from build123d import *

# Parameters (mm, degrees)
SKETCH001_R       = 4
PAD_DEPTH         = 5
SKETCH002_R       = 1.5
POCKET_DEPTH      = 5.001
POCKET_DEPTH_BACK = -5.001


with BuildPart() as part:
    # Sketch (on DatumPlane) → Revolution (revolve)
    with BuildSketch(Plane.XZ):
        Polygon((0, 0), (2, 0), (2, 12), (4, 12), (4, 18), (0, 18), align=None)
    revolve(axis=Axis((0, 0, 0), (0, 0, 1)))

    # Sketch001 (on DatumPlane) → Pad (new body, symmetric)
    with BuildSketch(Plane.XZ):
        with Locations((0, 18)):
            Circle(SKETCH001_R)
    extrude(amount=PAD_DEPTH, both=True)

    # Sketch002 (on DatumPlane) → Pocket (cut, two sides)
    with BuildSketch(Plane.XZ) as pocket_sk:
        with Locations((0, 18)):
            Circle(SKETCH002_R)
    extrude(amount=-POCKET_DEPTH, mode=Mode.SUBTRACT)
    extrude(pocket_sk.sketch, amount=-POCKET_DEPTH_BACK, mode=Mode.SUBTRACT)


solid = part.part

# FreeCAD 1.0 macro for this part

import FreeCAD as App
import Part
import Sketcher


def add_polygon(sketch, points):
    """Adds a closed chain of lines whose ends are joined by coincident constraints."""
    first, n = sketch.GeometryCount, len(points)
    for a, b in zip(points, points[1:] + points[:1]):
        sketch.addGeometry(Part.LineSegment(App.Vector(*a, 0), App.Vector(*b, 0)), False)
    for i in range(n):
        sketch.addConstraint(Sketcher.Constraint("Coincident", first + i, 2, first + (i + 1) % n, 1))

doc = App.newDocument("Part")
params = doc.addObject("Spreadsheet::Sheet", "Params")
for row, (alias, value) in enumerate([
    ("sketch1_width", "2 mm"),
    ("sketch1_height", "12 mm"),
    ("sketch1_height2", "6 mm"),
    ("revolution_angle", "360 deg"),
    ("sketch2_diameter", "8 mm"),
    ("pad1_length", "10 mm"),
    ("sketch3_diameter", "3 mm"),
], start=1):
    params.set(f"A{row}", alias)
    params.set(f"B{row}", "=" + value)
    params.setAlias(f"B{row}", alias)

body = doc.addObject("PartDesign::Body", "Body")

# Sketch on XZ plane
sketch1 = body.newObject("Sketcher::SketchObject", "Sketch")
sketch1.AttachmentSupport = (doc.getObject("XZ_Plane"), [""])
sketch1.MapMode = "FlatFace"
add_polygon(sketch1, [(0, 0), (2, 0), (2, 12), (4, 12), (4, 18), (0, 18)])  # lines 0-5
sketch1.addConstraint([
    Sketcher.Constraint("Horizontal", 0),
    Sketcher.Constraint("Vertical", 1),
    Sketcher.Constraint("Horizontal", 2),
    Sketcher.Constraint("Vertical", 3),
    Sketcher.Constraint("Horizontal", 4),
    Sketcher.Constraint("Vertical", 5),
    Sketcher.Constraint("Coincident", 5, 2, -1, 1),
    Sketcher.Constraint("Equal", 0, 2),
    Sketcher.Constraint("DistanceX", 0, 1, 0, 2, 2.0),
    Sketcher.Constraint("DistanceY", 1, 1, 1, 2, 12.0),
    Sketcher.Constraint("DistanceY", 3, 1, 3, 2, 6.0),
])
sketch1.setExpression("Constraints[14]", "Params.sketch1_width")
sketch1.setExpression("Constraints[15]", "Params.sketch1_height")
sketch1.setExpression("Constraints[16]", "Params.sketch1_height2")
revolution = body.newObject("PartDesign::Revolution", "Revolution")
revolution.Profile = sketch1
revolution.ReferenceAxis = (sketch1, ["V_Axis"])
revolution.setExpression("Angle", "Params.revolution_angle")

# Sketch on XZ plane
sketch2 = body.newObject("Sketcher::SketchObject", "Sketch001")
sketch2.AttachmentSupport = (doc.getObject("XZ_Plane"), [""])
sketch2.MapMode = "FlatFace"
sketch2.addGeometry(Part.Circle(App.Vector(0, 18, 0), App.Vector(0, 0, 1), 4), False)
sketch2.addConstraint([
    Sketcher.Constraint("PointOnObject", 0, 3, -2),
    Sketcher.Constraint("Diameter", 0, 8.0),
    Sketcher.Constraint("DistanceY", -1, 1, 0, 3, 18.0),
])
sketch2.setExpression("Constraints[1]", "Params.sketch2_diameter")
pad1 = body.newObject("PartDesign::Pad", "Pad")
pad1.Profile = sketch2
pad1.setExpression("Length", "Params.pad1_length")
pad1.Midplane = True

# Sketch on XZ plane
sketch3 = body.newObject("Sketcher::SketchObject", "Sketch002")
sketch3.AttachmentSupport = (doc.getObject("XZ_Plane"), [""])
sketch3.MapMode = "FlatFace"
sketch3.addGeometry(Part.Circle(App.Vector(0, 18, 0), App.Vector(0, 0, 1), 1.5), False)
sketch3.addConstraint([
    Sketcher.Constraint("PointOnObject", 0, 3, -2),
    Sketcher.Constraint("Diameter", 0, 3.0),
    Sketcher.Constraint("DistanceY", -1, 1, 0, 3, 18.0),
])
sketch3.setExpression("Constraints[1]", "Params.sketch3_diameter")
pocket1 = body.newObject("PartDesign::Pocket", "Pocket")
pocket1.Profile = sketch3
pocket1.Type = "ThroughAll"
pocket1.Midplane = True

doc.recompute()
